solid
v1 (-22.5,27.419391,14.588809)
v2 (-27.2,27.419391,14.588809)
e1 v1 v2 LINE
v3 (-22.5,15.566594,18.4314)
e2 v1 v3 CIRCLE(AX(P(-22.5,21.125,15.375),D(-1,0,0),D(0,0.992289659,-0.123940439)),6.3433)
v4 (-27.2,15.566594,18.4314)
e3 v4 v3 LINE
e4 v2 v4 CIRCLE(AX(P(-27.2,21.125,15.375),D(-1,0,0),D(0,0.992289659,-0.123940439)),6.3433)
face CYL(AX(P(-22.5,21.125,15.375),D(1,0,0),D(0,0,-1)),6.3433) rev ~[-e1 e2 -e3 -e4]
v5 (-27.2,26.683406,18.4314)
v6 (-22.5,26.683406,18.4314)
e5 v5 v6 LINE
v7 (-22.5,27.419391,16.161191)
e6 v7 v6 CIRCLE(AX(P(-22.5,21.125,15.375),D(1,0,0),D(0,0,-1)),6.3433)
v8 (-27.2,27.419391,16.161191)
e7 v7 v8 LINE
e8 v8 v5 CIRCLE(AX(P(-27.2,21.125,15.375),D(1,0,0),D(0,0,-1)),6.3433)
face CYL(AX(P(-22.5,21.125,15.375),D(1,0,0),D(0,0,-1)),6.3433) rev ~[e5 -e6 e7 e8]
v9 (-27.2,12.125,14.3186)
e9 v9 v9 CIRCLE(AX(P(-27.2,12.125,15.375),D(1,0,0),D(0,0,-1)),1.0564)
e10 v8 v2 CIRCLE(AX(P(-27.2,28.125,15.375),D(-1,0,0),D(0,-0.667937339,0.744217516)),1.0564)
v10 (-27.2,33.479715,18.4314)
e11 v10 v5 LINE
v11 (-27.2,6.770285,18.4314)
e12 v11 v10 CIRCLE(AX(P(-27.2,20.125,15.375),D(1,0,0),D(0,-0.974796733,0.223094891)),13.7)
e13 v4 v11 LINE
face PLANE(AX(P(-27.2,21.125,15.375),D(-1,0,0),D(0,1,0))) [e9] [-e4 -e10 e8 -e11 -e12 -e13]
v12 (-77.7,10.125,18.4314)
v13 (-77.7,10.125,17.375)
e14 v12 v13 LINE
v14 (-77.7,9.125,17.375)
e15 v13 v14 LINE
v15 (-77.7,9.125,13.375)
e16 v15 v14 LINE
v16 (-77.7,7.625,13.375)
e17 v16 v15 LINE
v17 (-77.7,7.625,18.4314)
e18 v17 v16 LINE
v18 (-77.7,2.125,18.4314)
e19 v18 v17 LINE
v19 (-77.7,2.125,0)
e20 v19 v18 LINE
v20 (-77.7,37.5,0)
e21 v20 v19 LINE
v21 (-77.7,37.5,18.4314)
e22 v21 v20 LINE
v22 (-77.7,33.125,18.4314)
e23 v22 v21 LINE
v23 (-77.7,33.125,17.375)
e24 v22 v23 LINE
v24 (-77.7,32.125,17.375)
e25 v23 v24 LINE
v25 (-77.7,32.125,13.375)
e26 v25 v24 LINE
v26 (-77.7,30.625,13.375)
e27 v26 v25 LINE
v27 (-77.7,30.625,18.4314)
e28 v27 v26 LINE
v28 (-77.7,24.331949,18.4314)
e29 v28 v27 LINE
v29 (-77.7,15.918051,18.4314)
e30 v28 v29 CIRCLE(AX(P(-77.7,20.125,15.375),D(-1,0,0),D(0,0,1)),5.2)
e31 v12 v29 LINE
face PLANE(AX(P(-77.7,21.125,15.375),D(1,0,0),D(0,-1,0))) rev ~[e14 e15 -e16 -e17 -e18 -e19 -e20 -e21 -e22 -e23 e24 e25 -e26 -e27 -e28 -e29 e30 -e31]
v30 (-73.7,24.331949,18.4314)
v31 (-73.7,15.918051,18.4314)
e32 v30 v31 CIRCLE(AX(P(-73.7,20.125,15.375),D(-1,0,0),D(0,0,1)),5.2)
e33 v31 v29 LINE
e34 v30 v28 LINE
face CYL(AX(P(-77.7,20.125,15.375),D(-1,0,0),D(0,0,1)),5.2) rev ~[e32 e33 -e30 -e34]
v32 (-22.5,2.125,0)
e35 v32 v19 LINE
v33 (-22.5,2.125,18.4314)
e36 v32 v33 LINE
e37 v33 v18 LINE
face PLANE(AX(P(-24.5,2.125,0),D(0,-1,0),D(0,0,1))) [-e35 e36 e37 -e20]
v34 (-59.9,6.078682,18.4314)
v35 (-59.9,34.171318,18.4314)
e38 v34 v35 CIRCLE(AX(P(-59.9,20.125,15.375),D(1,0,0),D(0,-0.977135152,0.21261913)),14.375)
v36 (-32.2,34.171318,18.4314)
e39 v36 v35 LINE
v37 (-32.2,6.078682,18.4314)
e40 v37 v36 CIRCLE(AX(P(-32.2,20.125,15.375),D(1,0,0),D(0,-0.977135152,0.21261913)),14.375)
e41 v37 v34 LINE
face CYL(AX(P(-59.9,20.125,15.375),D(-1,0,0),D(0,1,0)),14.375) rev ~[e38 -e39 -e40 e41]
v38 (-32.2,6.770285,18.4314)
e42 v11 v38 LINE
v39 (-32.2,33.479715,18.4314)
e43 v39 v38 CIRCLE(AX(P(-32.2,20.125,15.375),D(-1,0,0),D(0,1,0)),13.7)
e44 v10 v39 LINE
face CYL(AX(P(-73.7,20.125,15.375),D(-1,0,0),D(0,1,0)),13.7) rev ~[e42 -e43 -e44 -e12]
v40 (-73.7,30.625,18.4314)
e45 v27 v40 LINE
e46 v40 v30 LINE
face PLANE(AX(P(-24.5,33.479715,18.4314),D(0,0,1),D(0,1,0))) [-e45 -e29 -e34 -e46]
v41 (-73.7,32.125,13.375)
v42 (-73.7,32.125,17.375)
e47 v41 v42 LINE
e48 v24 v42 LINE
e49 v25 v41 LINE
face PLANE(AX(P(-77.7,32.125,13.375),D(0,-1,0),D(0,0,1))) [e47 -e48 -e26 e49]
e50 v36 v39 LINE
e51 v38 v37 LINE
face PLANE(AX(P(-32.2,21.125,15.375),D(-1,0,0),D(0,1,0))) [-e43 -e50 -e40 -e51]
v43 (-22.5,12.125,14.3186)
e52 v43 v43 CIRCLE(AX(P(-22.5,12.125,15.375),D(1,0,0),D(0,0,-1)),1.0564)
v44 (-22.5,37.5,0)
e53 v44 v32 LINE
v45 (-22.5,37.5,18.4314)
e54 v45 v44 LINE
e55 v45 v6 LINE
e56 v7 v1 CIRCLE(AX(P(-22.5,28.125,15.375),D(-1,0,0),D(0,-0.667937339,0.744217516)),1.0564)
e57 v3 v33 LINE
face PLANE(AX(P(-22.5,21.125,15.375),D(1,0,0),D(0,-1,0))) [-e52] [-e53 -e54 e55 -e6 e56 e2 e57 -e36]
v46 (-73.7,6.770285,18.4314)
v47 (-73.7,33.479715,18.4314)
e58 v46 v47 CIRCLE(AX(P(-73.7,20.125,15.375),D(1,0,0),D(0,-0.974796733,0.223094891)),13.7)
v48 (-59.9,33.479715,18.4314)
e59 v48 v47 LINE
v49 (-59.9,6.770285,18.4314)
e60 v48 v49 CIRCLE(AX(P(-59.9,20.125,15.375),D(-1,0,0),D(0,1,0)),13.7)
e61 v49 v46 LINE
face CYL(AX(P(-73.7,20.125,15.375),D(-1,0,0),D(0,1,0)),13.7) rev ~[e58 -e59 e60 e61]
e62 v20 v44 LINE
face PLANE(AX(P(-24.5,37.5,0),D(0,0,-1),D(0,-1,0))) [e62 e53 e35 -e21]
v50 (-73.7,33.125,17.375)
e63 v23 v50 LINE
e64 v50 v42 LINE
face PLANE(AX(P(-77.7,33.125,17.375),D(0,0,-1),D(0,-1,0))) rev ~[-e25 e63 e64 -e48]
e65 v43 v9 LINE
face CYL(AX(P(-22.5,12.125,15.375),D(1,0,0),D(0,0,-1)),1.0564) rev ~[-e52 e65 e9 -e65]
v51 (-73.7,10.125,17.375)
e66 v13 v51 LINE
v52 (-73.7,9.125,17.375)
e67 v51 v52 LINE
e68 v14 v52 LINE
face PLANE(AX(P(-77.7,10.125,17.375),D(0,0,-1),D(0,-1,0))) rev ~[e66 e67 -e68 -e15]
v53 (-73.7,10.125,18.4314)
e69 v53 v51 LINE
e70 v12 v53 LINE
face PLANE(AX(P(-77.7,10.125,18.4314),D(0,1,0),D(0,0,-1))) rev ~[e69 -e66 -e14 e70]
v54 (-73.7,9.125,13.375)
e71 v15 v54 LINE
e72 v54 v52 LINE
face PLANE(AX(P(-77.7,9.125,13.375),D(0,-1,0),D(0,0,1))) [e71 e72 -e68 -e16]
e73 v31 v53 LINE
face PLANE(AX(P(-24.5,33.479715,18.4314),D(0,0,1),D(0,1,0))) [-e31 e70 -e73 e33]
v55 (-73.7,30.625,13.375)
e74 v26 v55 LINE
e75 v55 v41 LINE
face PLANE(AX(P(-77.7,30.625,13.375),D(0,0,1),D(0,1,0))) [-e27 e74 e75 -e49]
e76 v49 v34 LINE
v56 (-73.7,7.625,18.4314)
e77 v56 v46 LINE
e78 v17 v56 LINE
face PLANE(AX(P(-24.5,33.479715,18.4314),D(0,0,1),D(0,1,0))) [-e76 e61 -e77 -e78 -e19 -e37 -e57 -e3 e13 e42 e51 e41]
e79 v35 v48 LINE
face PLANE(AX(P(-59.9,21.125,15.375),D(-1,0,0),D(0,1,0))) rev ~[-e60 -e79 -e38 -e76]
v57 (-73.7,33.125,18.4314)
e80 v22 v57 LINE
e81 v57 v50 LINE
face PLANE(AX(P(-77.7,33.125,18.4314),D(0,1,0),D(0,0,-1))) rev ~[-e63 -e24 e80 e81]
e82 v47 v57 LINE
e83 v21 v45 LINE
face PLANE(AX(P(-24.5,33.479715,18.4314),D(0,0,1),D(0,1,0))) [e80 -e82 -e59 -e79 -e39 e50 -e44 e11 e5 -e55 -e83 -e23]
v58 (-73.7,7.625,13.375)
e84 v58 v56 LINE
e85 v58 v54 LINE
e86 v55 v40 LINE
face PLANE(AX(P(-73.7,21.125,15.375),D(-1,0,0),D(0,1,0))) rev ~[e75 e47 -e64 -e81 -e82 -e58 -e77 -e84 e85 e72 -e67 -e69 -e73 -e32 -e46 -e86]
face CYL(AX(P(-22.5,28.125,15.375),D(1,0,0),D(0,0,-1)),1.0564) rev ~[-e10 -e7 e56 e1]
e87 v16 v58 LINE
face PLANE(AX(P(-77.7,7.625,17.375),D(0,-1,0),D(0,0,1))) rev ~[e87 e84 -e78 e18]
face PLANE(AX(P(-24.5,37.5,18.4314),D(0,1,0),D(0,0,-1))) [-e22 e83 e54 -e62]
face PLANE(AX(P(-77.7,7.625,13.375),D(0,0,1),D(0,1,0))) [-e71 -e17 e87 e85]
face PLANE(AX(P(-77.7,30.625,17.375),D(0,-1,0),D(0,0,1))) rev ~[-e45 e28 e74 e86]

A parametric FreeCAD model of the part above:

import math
import FreeCAD as App
import Part
import Sketcher
Q = App.Units.Quantity


def add_polygon(sketch, points):
    """Adds a closed chain of lines whose ends are joined by coincident constraints."""
    first, n = sketch.GeometryCount, len(points)
    for a, b in zip(points, points[1:] + points[:1]):
        sketch.addGeometry(Part.LineSegment(App.Vector(*a, 0), App.Vector(*b, 0)), False)
    for i in range(n):
        sketch.addConstraint(Sketcher.Constraint("Coincident", first + i, 2, first + (i + 1) % n, 1))

doc = App.newDocument("Part")
body = doc.addObject("PartDesign::Body", "Body")

# Sketch on YZ plane
sketch1 = body.newObject("Sketcher::SketchObject", "Sketch")
sketch1.AttachmentSupport = (doc.getObject("YZ_Plane"), [""])
sketch1.MapMode = "FlatFace"
sketch1.AttachmentOffset = App.Placement(App.Vector(0, 0, -24.5), App.Rotation())
add_polygon(sketch1, [(2.125, 0), (37.5, 0), (37.5, 18.4314), (2.125, 18.4314)])  # lines 0-3
sketch1.addConstraint(Sketcher.Constraint("Horizontal", 0))
sketch1.addConstraint(Sketcher.Constraint("Vertical", 1))
sketch1.addConstraint(Sketcher.Constraint("Horizontal", 2))
sketch1.addConstraint(Sketcher.Constraint("Vertical", 3))
sketch1.addConstraint(Sketcher.Constraint("PointOnObject", 0, 2, -1))
sketch1.addConstraint(Sketcher.Constraint("DistanceX", -1, 1, 0, 2, Q("37.5 mm")))
sketch1.addConstraint(Sketcher.Constraint("DistanceX", 0, 1, 0, 2, Q("35.375 mm")))
sketch1.addConstraint(Sketcher.Constraint("DistanceY", 1, 1, 1, 2, Q("18.4314 mm")))
pad1 = body.newObject("PartDesign::Pad", "Pad")
pad1.Profile = sketch1
pad1.Type = "TwoLengths"
pad1.Length = 2
pad1.Length2 = 53.2

# Sketch on YZ plane
sketch2 = body.newObject("Sketcher::SketchObject", "Sketch001")
sketch2.AttachmentSupport = (doc.getObject("YZ_Plane"), [""])
sketch2.MapMode = "FlatFace"
sketch2.AttachmentOffset = App.Placement(App.Vector(0, 0, -77.7), App.Rotation())
sketch2.addGeometry(Part.Circle(App.Vector(20.125, 15.375, 0), App.Vector(0, 0, 1), 5.2), False)  # 0
add_polygon(sketch2, [(7.625, 18.4314), (10.125, 18.4314), (10.125, 17.375), (9.125, 17.375), (9.125, 13.375), (7.625, 13.375)])  # lines 1-6
add_polygon(sketch2, [(30.625, 18.4314), (33.125, 18.4314), (33.125, 17.375), (32.125, 17.375), (32.125, 13.375), (30.625, 13.375)])  # lines 7-12
sketch2.addConstraint(Sketcher.Constraint("Horizontal", 1))
sketch2.addConstraint(Sketcher.Constraint("Vertical", 2))
sketch2.addConstraint(Sketcher.Constraint("Horizontal", 3))
sketch2.addConstraint(Sketcher.Constraint("Vertical", 4))
sketch2.addConstraint(Sketcher.Constraint("Horizontal", 5))
sketch2.addConstraint(Sketcher.Constraint("Vertical", 6))
sketch2.addConstraint(Sketcher.Constraint("Horizontal", 7))
sketch2.addConstraint(Sketcher.Constraint("Vertical", 8))
sketch2.addConstraint(Sketcher.Constraint("Horizontal", 9))
sketch2.addConstraint(Sketcher.Constraint("Vertical", 10))
sketch2.addConstraint(Sketcher.Constraint("Horizontal", 11))
sketch2.addConstraint(Sketcher.Constraint("Vertical", 12))
sketch2.addConstraint(Sketcher.Constraint("Horizontal", 6, 2, 7, 2))
sketch2.addConstraint(Sketcher.Constraint("Horizontal", 3, 2, 8, 2))
sketch2.addConstraint(Sketcher.Constraint("Horizontal", 5, 2, 10, 2))
sketch2.addConstraint(Sketcher.Constraint("Equal", 1, 7))
sketch2.addConstraint(Sketcher.Constraint("Equal", 3, 9))
sketch2.addConstraint(Sketcher.Constraint("Diameter", 0, Q("10.4 mm")))
sketch2.addConstraint(Sketcher.Constraint("DistanceX", 3, 2, 3, 1, Q("1 mm")))
sketch2.addConstraint(Sketcher.Constraint("DistanceY", 4, 2, 4, 1, Q("4 mm")))
sketch2.addConstraint(Sketcher.Constraint("DistanceX", 1, 1, 1, 2, Q("2.5 mm")))
sketch2.addConstraint(Sketcher.Constraint("DistanceX", 1, 2, 0, 3, Q("10 mm")))
sketch2.addConstraint(Sketcher.Constraint("DistanceY", 0, 3, 2, 2, Q("2 mm")))
sketch2.addConstraint(Sketcher.Constraint("DistanceX", 0, 3, 7, 2, Q("13 mm")))
sketch2.addConstraint(Sketcher.Constraint("DistanceY", 2, 2, 2, 1, Q("1.0564 mm")))
sketch2.addConstraint(Sketcher.Constraint("DistanceX", -1, 1, 0, 3, Q("20.125 mm")))
sketch2.addConstraint(Sketcher.Constraint("DistanceY", -1, 1, 0, 3, Q("15.375 mm")))
pocket1 = body.newObject("PartDesign::Pocket", "Pocket")
pocket1.Profile = sketch2
pocket1.Length = 4
pocket1.Reversed = True

# Sketch on YZ plane
sketch3 = body.newObject("Sketcher::SketchObject", "Sketch002")
sketch3.AttachmentSupport = (doc.getObject("YZ_Plane"), [""])
sketch3.MapMode = "FlatFace"
sketch3.AttachmentOffset = App.Placement(App.Vector(0, 0, -73.7), App.Rotation())
sketch3.addGeometry(Part.Circle(App.Vector(20.125, 15.375, 0), App.Vector(0, 0, 1), 13.7), False)
sketch3.addConstraint(Sketcher.Constraint("Diameter", 0, Q("27.4 mm")))
sketch3.addConstraint(Sketcher.Constraint("DistanceX", -1, 1, 0, 3, Q("20.125 mm")))
sketch3.addConstraint(Sketcher.Constraint("DistanceY", -1, 1, 0, 3, Q("15.375 mm")))
pocket2 = body.newObject("PartDesign::Pocket", "Pocket001")
pocket2.Profile = sketch3
pocket2.Length = 46.5
pocket2.Reversed = True

# Sketch on YZ plane
sketch4 = body.newObject("Sketcher::SketchObject", "Sketch003")
sketch4.AttachmentSupport = (doc.getObject("YZ_Plane"), [""])
sketch4.MapMode = "FlatFace"
sketch4.AttachmentOffset = App.Placement(App.Vector(0, 0, -59.9), App.Rotation())
sketch4.addGeometry(Part.Circle(App.Vector(20.125, 15.375, 0), App.Vector(0, 0, 1), 14.375), False)
sketch4.addConstraint(Sketcher.Constraint("Diameter", 0, Q("28.75 mm")))
sketch4.addConstraint(Sketcher.Constraint("DistanceX", -1, 1, 0, 3, Q("20.125 mm")))
sketch4.addConstraint(Sketcher.Constraint("DistanceY", -1, 1, 0, 3, Q("15.375 mm")))
pocket3 = body.newObject("PartDesign::Pocket", "Pocket002")
pocket3.Profile = sketch4
pocket3.Length = 27.7
pocket3.Reversed = True

# Sketch on YZ plane
sketch5 = body.newObject("Sketcher::SketchObject", "Sketch004")
sketch5.AttachmentSupport = (doc.getObject("YZ_Plane"), [""])
sketch5.MapMode = "FlatFace"
sketch5.AttachmentOffset = App.Placement(App.Vector(0, 0, -22.5), App.Rotation())
sketch5.addGeometry(Part.Circle(App.Vector(12.125, 15.375, 0), App.Vector(0, 0, 1), 1.0564), False)
sketch5.addGeometry(Part.ArcOfCircle(Part.Circle(App.Vector(28.125, 15.375, 0), App.Vector(0, 0, 1), 1.0564), math.radians(-131.908067), math.radians(131.908067)), False)
sketch5.addGeometry(Part.ArcOfCircle(Part.Circle(App.Vector(21.125, 15.375, 0), App.Vector(0, 0, 1), 6.3433), math.radians(7.119572), math.radians(352.880428)), False)
sketch5.addConstraint(Sketcher.Constraint("Coincident", 1, 1, 2, 2))
sketch5.addConstraint(Sketcher.Constraint("Coincident", 2, 1, 1, 2))
sketch5.addConstraint(Sketcher.Constraint("Equal", 0, 1))
sketch5.addConstraint(Sketcher.Constraint("Horizontal", 0, 3, 1, 3))
sketch5.addConstraint(Sketcher.Constraint("Horizontal", 1, 3, 2, 3))
sketch5.addConstraint(Sketcher.Constraint("DistanceX", 0, 3, 1, 3, Q("16 mm")))
sketch5.addConstraint(Sketcher.Constraint("DistanceX", 2, 3, 1, 3, Q("7 mm")))
sketch5.addConstraint(Sketcher.Constraint("Diameter", 0, Q("2.1128 mm")))
sketch5.addConstraint(Sketcher.Constraint("Radius", 2, Q("6.3433 mm")))
sketch5.addConstraint(Sketcher.Constraint("DistanceX", -1, 1, 0, 3, Q("12.125 mm")))
sketch5.addConstraint(Sketcher.Constraint("DistanceY", -1, 1, 0, 3, Q("15.375 mm")))
pocket4 = body.newObject("PartDesign::Pocket", "Pocket003")
pocket4.Profile = sketch5
pocket4.Length = 10
pocket4.Midplane = True

doc.recompute()
